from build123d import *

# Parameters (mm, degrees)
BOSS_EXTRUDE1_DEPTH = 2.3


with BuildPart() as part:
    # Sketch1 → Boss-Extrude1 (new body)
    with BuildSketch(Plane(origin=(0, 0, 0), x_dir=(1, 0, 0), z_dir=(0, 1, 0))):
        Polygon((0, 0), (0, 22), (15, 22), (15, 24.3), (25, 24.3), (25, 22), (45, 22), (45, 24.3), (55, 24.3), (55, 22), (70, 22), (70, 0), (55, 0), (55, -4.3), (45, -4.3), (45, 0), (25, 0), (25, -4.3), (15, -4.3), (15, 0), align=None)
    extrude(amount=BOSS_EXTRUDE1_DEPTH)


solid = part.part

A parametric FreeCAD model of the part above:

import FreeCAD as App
import Part
import Sketcher
Q = App.Units.Quantity


def add_polygon(sketch, points):
    """Adds a closed chain of lines whose ends are joined by coincident constraints."""
    first, n = sketch.GeometryCount, len(points)
    for a, b in zip(points, points[1:] + points[:1]):
        sketch.addGeometry(Part.LineSegment(App.Vector(*a, 0), App.Vector(*b, 0)), False)
    for i in range(n):
        sketch.addConstraint(Sketcher.Constraint("Coincident", first + i, 2, first + (i + 1) % n, 1))

doc = App.newDocument("Part")
body = doc.addObject("PartDesign::Body", "Body")

sketch1 = body.newObject("Sketcher::SketchObject", "Sketch")
sketch1.AttachmentSupport = (doc.getObject("XZ_Plane"), [""])
sketch1.MapMode = "FlatFace"
add_polygon(sketch1, [(0, -22), (0, 0), (15, 0), (15, 4.3), (25, 4.3), (25, 0), (45, 0), (45, 4.3), (55, 4.3), (55, 0), (70, 0), (70, -22), (55, -22), (55, -24.3), (45, -24.3), (45, -22), (25, -22), (25, -24.3), (15, -24.3), (15, -22)])
sketch1.addConstraint([
    Sketcher.Constraint("Vertical", 0),
    Sketcher.Constraint("Horizontal", 1),
    Sketcher.Constraint("Vertical", 2),
    Sketcher.Constraint("Horizontal", 3),
    Sketcher.Constraint("Vertical", 4),
    Sketcher.Constraint("Horizontal", 5),
    Sketcher.Constraint("Vertical", 6),
    Sketcher.Constraint("Horizontal", 7),
    Sketcher.Constraint("Vertical", 8),
    Sketcher.Constraint("Horizontal", 9),
    Sketcher.Constraint("Vertical", 10),
    Sketcher.Constraint("Horizontal", 11),
    Sketcher.Constraint("Vertical", 12),
    Sketcher.Constraint("Horizontal", 13),
    Sketcher.Constraint("Vertical", 14),
    Sketcher.Constraint("Horizontal", 15),
    Sketcher.Constraint("Vertical", 16),
    Sketcher.Constraint("Horizontal", 17),
    Sketcher.Constraint("Vertical", 18),
    Sketcher.Constraint("Horizontal", 19),
    Sketcher.Constraint("Coincident", 0, 2, -1, 1),
    Sketcher.Constraint("PointOnObject", 4, 2, -1),
    Sketcher.Constraint("PointOnObject", 8, 2, -1),
    Sketcher.Constraint("Horizontal", 3, 2, 6, 2),
    Sketcher.Constraint("Horizontal", 11, 2, 14, 2),
    Sketcher.Constraint("Horizontal", 13, 2, 16, 2),
    Sketcher.Constraint("Horizontal", 15, 2, 18, 2),
    Sketcher.Constraint("Vertical", 8, 2, 11, 2),
    Sketcher.Constraint("Vertical", 6, 2, 13, 2),
    Sketcher.Constraint("Vertical", 4, 2, 15, 2),
    Sketcher.Constraint("Vertical", 2, 2, 17, 2),
    Sketcher.Constraint("Equal", 3, 7),
    Sketcher.Constraint("Equal", 1, 9),
    Sketcher.Constraint("DistanceX", 1, 1, 1, 2, Q("15 mm")),
    Sketcher.Constraint("DistanceX", 3, 1, 3, 2, Q("10 mm")),
    Sketcher.Constraint("DistanceX", 5, 1, 5, 2, Q("20 mm")),
    Sketcher.Constraint("DistanceY", 0, 1, 0, 2, Q("22 mm")),
    Sketcher.Constraint("DistanceY", 2, 1, 2, 2, Q("4.3 mm")),
    Sketcher.Constraint("DistanceY", 12, 2, 12, 1, Q("2.3 mm")),
])
pad1 = body.newObject("PartDesign::Pad", "Pad")
pad1.Profile = sketch1
pad1.Length = 2.3
pad1.Reversed = True

doc.recompute()
